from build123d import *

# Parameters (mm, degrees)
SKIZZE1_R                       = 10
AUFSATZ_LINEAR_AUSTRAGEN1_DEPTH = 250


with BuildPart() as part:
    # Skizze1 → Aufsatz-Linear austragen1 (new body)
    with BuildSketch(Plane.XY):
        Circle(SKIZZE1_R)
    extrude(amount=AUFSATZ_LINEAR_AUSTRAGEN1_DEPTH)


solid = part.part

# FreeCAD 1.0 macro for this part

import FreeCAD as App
import Part
import Sketcher

V = App.Vector
Q = App.Units.Quantity

doc = App.newDocument("Part")
body = doc.addObject("PartDesign::Body", "Body")

# Sketch on XY plane
sketch1 = body.newObject("Sketcher::SketchObject", "Sketch")
sketch1.AttachmentSupport = (doc.getObject("XY_Plane"), [""])
sketch1.MapMode = "FlatFace"
sketch1.addGeometry(Part.Circle(V(0, 0, 0), V(0, 0, 1), 10), False)
sketch1.addConstraint([
    Sketcher.Constraint("Coincident", 0, 3, -1, 1),
    Sketcher.Constraint("Diameter", 0, Q("20 mm")),
])
pad1 = body.newObject("PartDesign::Pad", "Pad")
pad1.Profile = sketch1
pad1.Length = 250

doc.recompute()
